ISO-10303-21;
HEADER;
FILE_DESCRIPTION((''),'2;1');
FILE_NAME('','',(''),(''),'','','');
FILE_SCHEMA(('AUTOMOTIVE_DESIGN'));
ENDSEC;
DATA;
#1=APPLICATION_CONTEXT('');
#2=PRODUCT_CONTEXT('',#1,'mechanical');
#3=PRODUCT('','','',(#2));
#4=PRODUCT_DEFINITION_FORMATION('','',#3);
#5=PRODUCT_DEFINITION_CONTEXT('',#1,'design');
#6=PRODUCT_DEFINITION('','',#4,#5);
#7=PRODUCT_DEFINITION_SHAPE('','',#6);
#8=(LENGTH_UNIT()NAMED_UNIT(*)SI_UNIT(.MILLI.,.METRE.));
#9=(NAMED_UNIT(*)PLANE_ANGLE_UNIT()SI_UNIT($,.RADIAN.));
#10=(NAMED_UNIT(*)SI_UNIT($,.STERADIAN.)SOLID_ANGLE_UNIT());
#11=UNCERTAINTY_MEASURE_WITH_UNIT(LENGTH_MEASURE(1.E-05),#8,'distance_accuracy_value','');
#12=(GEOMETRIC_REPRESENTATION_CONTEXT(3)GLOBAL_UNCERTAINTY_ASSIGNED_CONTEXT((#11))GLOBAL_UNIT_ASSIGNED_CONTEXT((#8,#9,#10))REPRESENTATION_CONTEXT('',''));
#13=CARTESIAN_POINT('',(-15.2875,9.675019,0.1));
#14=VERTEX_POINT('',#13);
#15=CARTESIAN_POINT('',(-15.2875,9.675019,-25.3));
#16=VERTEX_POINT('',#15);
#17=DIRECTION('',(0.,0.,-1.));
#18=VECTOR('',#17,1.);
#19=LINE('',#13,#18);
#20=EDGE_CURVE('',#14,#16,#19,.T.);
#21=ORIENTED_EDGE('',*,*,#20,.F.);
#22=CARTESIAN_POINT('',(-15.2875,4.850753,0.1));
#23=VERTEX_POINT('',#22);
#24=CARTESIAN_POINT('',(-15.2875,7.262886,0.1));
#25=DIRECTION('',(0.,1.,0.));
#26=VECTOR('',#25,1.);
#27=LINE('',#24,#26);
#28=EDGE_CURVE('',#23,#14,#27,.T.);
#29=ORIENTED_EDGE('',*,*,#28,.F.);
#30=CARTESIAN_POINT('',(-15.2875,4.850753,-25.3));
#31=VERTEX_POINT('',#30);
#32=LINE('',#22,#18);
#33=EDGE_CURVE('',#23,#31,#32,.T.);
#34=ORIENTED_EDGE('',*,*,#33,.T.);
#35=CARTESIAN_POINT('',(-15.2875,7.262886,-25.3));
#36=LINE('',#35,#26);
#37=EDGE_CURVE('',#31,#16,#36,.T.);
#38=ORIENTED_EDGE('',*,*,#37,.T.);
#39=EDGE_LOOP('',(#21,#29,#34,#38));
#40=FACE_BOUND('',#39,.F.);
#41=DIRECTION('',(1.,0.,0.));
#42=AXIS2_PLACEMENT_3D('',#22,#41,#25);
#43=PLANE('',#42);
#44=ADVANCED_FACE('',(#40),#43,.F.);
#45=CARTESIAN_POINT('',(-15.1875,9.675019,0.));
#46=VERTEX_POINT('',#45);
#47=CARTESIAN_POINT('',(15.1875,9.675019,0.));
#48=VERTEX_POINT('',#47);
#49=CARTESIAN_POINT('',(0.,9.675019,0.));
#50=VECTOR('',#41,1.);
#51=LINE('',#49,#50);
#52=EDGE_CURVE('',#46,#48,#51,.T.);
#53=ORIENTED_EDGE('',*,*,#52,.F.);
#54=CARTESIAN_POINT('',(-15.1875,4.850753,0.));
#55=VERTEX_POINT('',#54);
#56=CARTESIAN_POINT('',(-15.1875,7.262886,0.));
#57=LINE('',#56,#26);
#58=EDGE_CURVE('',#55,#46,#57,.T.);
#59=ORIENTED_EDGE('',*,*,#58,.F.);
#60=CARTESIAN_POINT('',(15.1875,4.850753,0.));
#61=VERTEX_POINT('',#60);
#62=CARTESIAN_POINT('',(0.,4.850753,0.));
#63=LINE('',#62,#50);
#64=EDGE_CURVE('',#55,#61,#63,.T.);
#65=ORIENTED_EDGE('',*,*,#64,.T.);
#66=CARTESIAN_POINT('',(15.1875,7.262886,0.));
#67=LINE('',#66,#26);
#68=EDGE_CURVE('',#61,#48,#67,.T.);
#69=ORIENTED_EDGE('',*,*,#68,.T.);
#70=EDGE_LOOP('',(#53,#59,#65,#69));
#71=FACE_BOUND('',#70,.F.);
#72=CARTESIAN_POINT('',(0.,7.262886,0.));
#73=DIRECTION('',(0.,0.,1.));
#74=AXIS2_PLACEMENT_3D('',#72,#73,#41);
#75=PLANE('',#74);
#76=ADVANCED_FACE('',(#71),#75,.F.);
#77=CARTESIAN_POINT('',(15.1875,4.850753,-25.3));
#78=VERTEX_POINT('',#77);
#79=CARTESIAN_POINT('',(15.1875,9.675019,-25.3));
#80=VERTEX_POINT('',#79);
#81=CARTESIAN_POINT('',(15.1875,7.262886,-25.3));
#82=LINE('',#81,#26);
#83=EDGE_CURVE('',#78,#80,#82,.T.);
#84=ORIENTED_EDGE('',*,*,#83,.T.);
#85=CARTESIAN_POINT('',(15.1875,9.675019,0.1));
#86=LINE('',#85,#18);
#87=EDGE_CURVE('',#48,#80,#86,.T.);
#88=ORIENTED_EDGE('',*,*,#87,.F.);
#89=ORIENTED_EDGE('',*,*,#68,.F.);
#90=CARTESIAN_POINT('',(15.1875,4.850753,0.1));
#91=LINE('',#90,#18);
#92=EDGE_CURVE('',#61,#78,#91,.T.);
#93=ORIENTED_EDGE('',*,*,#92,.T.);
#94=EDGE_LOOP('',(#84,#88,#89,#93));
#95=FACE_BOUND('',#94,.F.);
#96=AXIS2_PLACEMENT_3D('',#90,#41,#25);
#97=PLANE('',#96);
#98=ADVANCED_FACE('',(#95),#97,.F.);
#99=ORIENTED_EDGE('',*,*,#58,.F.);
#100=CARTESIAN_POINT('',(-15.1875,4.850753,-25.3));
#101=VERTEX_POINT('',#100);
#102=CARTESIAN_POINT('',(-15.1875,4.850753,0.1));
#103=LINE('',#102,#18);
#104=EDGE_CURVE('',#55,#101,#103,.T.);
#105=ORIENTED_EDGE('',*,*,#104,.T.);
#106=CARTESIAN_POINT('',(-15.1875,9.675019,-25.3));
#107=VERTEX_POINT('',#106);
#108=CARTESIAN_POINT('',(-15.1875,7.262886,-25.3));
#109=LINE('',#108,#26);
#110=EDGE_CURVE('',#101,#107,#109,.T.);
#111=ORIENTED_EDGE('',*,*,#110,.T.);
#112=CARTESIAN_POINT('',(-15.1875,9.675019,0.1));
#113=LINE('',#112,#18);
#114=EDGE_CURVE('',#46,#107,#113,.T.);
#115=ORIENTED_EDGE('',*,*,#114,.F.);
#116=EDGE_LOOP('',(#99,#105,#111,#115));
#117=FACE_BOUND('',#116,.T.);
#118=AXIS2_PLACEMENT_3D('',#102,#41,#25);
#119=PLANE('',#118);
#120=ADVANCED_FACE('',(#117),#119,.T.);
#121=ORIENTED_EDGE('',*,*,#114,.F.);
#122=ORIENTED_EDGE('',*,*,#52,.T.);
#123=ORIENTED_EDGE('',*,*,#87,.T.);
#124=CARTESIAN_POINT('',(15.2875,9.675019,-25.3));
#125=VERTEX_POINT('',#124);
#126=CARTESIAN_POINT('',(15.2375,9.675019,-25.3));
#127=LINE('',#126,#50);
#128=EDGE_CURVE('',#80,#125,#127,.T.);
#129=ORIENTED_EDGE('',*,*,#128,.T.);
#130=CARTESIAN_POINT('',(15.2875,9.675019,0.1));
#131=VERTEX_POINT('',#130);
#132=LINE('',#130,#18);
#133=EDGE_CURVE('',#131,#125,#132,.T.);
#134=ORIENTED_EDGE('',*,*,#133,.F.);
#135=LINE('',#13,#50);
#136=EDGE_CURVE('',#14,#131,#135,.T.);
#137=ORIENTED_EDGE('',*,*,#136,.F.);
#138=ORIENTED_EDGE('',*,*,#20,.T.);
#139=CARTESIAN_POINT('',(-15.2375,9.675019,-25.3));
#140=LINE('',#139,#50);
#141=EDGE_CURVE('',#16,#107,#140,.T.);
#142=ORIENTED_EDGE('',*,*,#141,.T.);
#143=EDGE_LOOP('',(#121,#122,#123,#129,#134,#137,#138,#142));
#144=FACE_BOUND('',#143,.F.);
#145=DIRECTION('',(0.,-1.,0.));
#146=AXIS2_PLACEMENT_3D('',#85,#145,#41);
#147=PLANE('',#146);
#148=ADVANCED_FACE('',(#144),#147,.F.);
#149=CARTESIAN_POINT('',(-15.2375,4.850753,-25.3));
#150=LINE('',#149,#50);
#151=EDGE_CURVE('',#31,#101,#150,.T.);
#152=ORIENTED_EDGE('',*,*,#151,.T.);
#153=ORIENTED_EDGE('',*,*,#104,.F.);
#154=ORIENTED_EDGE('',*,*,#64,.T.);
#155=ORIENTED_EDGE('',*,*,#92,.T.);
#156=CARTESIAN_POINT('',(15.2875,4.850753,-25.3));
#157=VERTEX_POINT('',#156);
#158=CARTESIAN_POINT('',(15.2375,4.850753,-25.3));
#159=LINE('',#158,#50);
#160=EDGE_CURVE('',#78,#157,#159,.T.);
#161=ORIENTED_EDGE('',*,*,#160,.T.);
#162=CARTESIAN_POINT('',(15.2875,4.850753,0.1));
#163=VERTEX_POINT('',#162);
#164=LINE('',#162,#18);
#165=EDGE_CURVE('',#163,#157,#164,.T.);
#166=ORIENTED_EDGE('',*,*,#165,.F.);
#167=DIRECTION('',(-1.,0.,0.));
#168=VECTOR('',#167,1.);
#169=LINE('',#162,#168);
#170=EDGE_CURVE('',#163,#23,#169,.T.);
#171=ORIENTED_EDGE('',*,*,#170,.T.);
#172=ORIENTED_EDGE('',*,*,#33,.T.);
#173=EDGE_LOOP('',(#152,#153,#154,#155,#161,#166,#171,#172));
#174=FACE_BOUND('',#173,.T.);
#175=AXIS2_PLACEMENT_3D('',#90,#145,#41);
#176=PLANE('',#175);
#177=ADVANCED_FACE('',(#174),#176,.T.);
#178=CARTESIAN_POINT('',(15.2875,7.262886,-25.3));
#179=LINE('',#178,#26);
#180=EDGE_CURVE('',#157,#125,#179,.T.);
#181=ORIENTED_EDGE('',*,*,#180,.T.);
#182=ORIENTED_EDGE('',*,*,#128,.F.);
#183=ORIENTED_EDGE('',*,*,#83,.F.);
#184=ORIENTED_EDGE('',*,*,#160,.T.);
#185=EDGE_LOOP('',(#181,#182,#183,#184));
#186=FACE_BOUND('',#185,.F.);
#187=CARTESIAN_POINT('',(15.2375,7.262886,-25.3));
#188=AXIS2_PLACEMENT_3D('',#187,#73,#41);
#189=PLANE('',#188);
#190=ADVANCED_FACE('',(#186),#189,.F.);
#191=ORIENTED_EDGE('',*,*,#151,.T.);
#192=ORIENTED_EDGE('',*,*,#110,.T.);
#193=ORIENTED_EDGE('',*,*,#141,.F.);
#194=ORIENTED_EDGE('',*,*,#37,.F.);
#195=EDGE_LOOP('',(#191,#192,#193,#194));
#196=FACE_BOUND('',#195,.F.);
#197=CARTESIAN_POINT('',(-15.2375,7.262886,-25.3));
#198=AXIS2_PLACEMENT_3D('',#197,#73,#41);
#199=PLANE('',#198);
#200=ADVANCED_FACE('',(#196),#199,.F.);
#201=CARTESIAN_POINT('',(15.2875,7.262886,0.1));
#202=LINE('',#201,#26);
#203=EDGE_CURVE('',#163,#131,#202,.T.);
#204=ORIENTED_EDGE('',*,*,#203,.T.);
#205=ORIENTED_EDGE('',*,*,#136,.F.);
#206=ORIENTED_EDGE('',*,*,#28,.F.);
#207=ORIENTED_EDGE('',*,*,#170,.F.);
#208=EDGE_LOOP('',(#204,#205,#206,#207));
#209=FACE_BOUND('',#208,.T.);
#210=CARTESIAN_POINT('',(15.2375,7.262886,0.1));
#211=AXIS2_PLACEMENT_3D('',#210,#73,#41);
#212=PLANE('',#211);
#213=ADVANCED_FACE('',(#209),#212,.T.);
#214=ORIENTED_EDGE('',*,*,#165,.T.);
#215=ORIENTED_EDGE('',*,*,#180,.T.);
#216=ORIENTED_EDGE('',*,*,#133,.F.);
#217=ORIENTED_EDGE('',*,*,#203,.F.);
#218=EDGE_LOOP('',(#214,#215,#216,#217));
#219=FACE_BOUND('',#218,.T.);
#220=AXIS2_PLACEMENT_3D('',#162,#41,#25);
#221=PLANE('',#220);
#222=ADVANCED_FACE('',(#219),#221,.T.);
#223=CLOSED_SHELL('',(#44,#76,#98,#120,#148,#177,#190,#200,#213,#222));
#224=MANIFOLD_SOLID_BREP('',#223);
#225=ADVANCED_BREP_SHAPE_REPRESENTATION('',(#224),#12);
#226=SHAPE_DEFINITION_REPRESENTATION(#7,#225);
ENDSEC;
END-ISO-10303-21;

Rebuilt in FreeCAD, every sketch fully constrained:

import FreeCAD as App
import Part
import Sketcher
from FreeCAD import Vector
Q = App.Units.Quantity


def add_polygon(sketch, points):
    """Adds a closed chain of lines whose ends are joined by coincident constraints."""
    first, n = sketch.GeometryCount, len(points)
    for a, b in zip(points, points[1:] + points[:1]):
        sketch.addGeometry(Part.LineSegment(App.Vector(*a, 0), App.Vector(*b, 0)), False)
    for i in range(n):
        sketch.addConstraint(Sketcher.Constraint("Coincident", first + i, 2, first + (i + 1) % n, 1))

doc = App.newDocument("Part")
params = doc.addObject("Spreadsheet::Sheet", "Params")
for row, (alias, value) in enumerate([
    ("pad1_length", "0.1 mm"),
    ("sketch2_width", "0.1 mm"),
    ("pad2_length", "25.4 mm"),
], start=1):
    params.set(f"A{row}", alias)
    params.set(f"B{row}", "=" + value)
    params.setAlias(f"B{row}", alias)

body = doc.addObject("PartDesign::Body", "Body")

# Sketch on XY plane
sketch1 = body.newObject("Sketcher::SketchObject", "Sketch")
sketch1.AttachmentSupport = (doc.getObject("XY_Plane"), [""])
sketch1.MapMode = "FlatFace"
add_polygon(sketch1, [(-15.2, 9.7), (-15.2, 4.9), (15.2, 4.9), (15.2, 9.7)])  # lines 0-3
sketch1.addConstraint([
    Sketcher.Constraint("Vertical", 0),
    Sketcher.Constraint("Horizontal", 1),
    Sketcher.Constraint("Vertical", 2),
    Sketcher.Constraint("Horizontal", 3),
    Sketcher.Constraint("DistanceX", 1, 1, 1, 2, Q("30.375 mm")),
    Sketcher.Constraint("DistanceX", 0, 2, -1, 1, Q("15.1875 mm")),
    Sketcher.Constraint("DistanceY", 0, 2, 0, 1, Q("4.824265 mm")),
    Sketcher.Constraint("DistanceY", -1, 1, 2, 2, Q("9.675019 mm")),
])
pad1 = body.newObject("PartDesign::Pad", "Pad")
pad1.Profile = sketch1
pad1.setExpression("Length", "Params.pad1_length")

# Sketch on XY plane
sketch2 = body.newObject("Sketcher::SketchObject", "Sketch001")
sketch2.AttachmentSupport = (doc.getObject("XY_Plane"), [""])
sketch2.MapMode = "FlatFace"
sketch2.AttachmentOffset = App.Placement(Vector(0, 0, 0.1), App.Rotation())
add_polygon(sketch2, [(15.19, 9.68), (15.19, 4.85), (15.29, 4.85), (15.29, 9.68)])  # lines 0-3
add_polygon(sketch2, [(-15.29, 9.68), (-15.29, 4.85), (-15.19, 4.85), (-15.19, 9.68)])  # lines 4-7
sketch2.addConstraint([
    Sketcher.Constraint("Vertical", 0),
    Sketcher.Constraint("Horizontal", 1),
    Sketcher.Constraint("Vertical", 2),
    Sketcher.Constraint("Horizontal", 3),
    Sketcher.Constraint("Vertical", 4),
    Sketcher.Constraint("Horizontal", 5),
    Sketcher.Constraint("Vertical", 6),
    Sketcher.Constraint("Horizontal", 7),
    Sketcher.Constraint("Symmetric", 1, 2, 4, 2, -2),
    Sketcher.Constraint("Symmetric", 3, 2, 6, 2, -2),
    Sketcher.Constraint("DistanceX", 1, 1, 1, 2, Q("0.1 mm")),
    Sketcher.Constraint("DistanceX", 4, 2, 0, 2, Q("30.475 mm")),
    Sketcher.Constraint("DistanceY", 0, 2, 0, 1, Q("4.824265 mm")),
    Sketcher.Constraint("DistanceY", -1, 1, 2, 2, Q("9.675019 mm")),
])
sketch2.setExpression("Constraints[18]", "Params.sketch2_width")
pad2 = body.newObject("PartDesign::Pad", "Pad001")
pad2.Profile = sketch2
pad2.setExpression("Length", "Params.pad2_length")
pad2.Reversed = True

doc.recompute()
